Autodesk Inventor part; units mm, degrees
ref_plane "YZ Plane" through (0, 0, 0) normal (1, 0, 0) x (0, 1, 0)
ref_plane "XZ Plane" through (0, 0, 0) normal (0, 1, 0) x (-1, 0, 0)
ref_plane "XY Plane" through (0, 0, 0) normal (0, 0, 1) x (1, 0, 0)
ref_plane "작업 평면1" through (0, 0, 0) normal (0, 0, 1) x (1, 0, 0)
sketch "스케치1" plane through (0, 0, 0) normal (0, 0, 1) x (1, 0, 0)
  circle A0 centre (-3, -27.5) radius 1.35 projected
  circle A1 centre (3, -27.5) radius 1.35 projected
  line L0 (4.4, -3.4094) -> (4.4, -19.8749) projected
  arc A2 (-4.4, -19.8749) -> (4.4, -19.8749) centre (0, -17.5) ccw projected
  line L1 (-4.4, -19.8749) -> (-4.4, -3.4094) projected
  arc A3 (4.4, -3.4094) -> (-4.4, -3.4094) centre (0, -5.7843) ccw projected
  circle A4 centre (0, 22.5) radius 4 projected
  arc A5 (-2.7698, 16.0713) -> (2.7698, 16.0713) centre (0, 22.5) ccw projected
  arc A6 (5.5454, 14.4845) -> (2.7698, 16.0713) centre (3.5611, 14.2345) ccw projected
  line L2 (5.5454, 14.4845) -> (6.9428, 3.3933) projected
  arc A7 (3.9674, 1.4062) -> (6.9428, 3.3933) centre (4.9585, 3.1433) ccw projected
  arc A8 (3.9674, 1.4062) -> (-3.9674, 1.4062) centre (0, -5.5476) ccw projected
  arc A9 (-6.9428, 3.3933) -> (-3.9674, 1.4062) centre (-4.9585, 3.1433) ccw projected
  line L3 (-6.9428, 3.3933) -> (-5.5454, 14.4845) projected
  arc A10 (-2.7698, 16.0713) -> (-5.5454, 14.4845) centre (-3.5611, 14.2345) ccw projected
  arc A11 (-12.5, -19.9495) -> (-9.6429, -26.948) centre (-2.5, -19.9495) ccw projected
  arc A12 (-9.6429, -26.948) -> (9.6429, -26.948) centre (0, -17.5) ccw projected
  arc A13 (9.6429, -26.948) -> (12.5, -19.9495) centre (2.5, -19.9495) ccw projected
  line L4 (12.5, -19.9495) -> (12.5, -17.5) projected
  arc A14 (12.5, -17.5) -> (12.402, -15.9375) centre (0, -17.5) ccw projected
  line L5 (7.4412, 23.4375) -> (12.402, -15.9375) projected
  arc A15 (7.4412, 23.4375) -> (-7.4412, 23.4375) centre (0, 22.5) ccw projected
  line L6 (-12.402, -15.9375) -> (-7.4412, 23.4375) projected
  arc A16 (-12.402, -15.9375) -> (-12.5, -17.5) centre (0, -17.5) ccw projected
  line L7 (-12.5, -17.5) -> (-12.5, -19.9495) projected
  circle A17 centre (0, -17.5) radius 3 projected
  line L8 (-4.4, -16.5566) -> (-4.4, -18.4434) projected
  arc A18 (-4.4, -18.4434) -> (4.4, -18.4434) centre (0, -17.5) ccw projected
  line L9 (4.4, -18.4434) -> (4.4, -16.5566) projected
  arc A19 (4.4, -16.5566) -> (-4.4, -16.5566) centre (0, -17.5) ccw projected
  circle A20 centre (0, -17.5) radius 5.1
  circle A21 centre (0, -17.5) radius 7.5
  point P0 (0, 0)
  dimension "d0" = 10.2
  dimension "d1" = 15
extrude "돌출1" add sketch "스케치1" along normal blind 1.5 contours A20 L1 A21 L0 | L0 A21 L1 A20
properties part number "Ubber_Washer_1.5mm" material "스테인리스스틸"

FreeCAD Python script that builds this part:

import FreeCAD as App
import Part
import Sketcher

doc = App.newDocument("Part")
body = doc.addObject("PartDesign::Body", "Body")

# Sketch on XY plane
sketch1 = body.newObject("Sketcher::SketchObject", "Sketch")
sketch1.AttachmentSupport = (doc.getObject("XY_Plane"), [""])
sketch1.MapMode = "FlatFace"
sketch1.addGeometry([
    Part.Circle(App.Vector(0, -18, 0), App.Vector(0, 0, 1), 8),
    Part.Circle(App.Vector(0, -18, 0), App.Vector(0, 0, 1), 5),
], False)
sketch1.addConstraint([
    Sketcher.Constraint("Coincident", 1, 3, 0, 3),
    Sketcher.Constraint("PointOnObject", 0, 3, -2),
    Sketcher.Constraint("Diameter", 0, 15.0),
    Sketcher.Constraint("Diameter", 1, 10.2),
    Sketcher.Constraint("DistanceY", 0, 3, -1, 1, 17.5),
])
pad1 = body.newObject("PartDesign::Pad", "Pad")
pad1.Profile = sketch1
pad1.Length = 1.5

doc.recompute()
